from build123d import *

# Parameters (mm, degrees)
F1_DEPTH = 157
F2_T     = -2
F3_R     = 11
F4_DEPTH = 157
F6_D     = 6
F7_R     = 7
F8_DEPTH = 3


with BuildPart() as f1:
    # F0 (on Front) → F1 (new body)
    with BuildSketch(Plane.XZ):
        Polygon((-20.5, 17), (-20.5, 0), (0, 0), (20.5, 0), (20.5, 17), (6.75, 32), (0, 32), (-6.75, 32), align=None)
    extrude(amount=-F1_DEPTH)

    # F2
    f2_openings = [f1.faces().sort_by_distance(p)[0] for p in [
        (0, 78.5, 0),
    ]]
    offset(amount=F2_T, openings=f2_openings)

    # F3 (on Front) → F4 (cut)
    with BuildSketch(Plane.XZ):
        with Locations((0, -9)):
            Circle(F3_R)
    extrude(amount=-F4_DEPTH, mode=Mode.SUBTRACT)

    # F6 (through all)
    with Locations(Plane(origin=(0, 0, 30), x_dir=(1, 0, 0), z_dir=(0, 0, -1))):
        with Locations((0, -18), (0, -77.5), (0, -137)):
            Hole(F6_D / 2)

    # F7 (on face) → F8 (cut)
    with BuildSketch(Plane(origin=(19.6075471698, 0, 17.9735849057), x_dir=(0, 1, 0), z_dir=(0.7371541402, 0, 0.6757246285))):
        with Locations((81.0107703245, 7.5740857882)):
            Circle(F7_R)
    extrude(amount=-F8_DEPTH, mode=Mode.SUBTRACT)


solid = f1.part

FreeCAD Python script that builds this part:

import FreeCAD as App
import Part
import Sketcher


def faces_at(feature, points):
    """Names of the faces that lie closest to the given points."""
    faces = feature.Shape.Faces
    near = lambda p: min(range(len(faces)), key=lambda i: faces[i].distToShape(Part.Vertex(*p))[0])
    return sorted({f"Face{near(p) + 1}" for p in points})


def add_polygon(sketch, points):
    """Adds a closed chain of lines whose ends are joined by coincident constraints."""
    first, n = sketch.GeometryCount, len(points)
    for a, b in zip(points, points[1:] + points[:1]):
        sketch.addGeometry(Part.LineSegment(App.Vector(*a, 0), App.Vector(*b, 0)), False)
    for i in range(n):
        sketch.addConstraint(Sketcher.Constraint("Coincident", first + i, 2, first + (i + 1) % n, 1))

doc = App.newDocument("Part")
body = doc.addObject("PartDesign::Body", "Body")

# Sketch on XZ plane
sketch1 = body.newObject("Sketcher::SketchObject", "Sketch")
sketch1.AttachmentSupport = (doc.getObject("XZ_Plane"), [""])
sketch1.MapMode = "FlatFace"
add_polygon(sketch1, [(-20.5, 17), (-20.5, 0), (20.5, 0), (20.5, 17), (6.75, 32), (-6.75, 32)])  # lines 0-5
sketch1.addConstraint([
    Sketcher.Constraint("Vertical", 0),
    Sketcher.Constraint("Horizontal", 1),
    Sketcher.Constraint("Vertical", 2),
    Sketcher.Constraint("Horizontal", 4),
    Sketcher.Constraint("Symmetric", 0, 2, 1, 2, -1, 1),
    Sketcher.Constraint("Horizontal", 2, 2, 5, 2),
    Sketcher.Constraint("Equal", 3, 5),
    Sketcher.Constraint("DistanceX", 1, 1, 1, 2, 41.0),
    Sketcher.Constraint("DistanceY", 0, 2, 0, 1, 17.0),
    Sketcher.Constraint("DistanceX", 4, 2, 4, 1, 13.5),
    Sketcher.Constraint("DistanceY", -1, 1, 3, 2, 32.0),
])
pad1 = body.newObject("PartDesign::Pad", "Pad")
pad1.Profile = sketch1
pad1.Length = 157
pad1.Reversed = True
doc.recompute()

thickness = body.newObject("PartDesign::Thickness", "Thickness")
thickness.Base = (pad1, faces_at(pad1, [(0, 78.5, 0)]))
thickness.Value = 2
thickness.Reversed = True
thickness.Join = "Arc"

# Sketch on XZ plane
sketch2 = body.newObject("Sketcher::SketchObject", "Sketch001")
sketch2.AttachmentSupport = (doc.getObject("XZ_Plane"), [""])
sketch2.MapMode = "FlatFace"
sketch2.addGeometry(Part.Circle(App.Vector(0, -9, 0), App.Vector(0, 0, 1), 11), False)
sketch2.addConstraint([
    Sketcher.Constraint("PointOnObject", 0, 3, -2),
    Sketcher.Constraint("Diameter", 0, 22.0),
    Sketcher.Constraint("DistanceY", 0, 3, -1, 1, 9.0),
])
pocket1 = body.newObject("PartDesign::Pocket", "Pocket")
pocket1.Profile = sketch2
pocket1.Length = 157

# Sketch on XY plane
sketch3 = body.newObject("Sketcher::SketchObject", "Sketch002")
sketch3.AttachmentSupport = (doc.getObject("XY_Plane"), [""])
sketch3.MapMode = "FlatFace"
sketch3.AttachmentOffset = App.Placement(App.Vector(0, 0, 30), App.Rotation())
sketch3.addGeometry([
    Part.Circle(App.Vector(0, 18, 0), App.Vector(0, 0, 1), 3),
    Part.Circle(App.Vector(0, 77.5, 0), App.Vector(0, 0, 1), 3),
    Part.Circle(App.Vector(0, 137, 0), App.Vector(0, 0, 1), 3),
], False)
sketch3.addConstraint([
    Sketcher.Constraint("Equal", 0, 1),
    Sketcher.Constraint("Equal", 1, 2),
    Sketcher.Constraint("PointOnObject", 0, 3, -2),
    Sketcher.Constraint("PointOnObject", 1, 3, -2),
    Sketcher.Constraint("PointOnObject", 2, 3, -2),
    Sketcher.Constraint("Diameter", 0, 6.0),
    Sketcher.Constraint("DistanceY", -1, 1, 0, 3, 18.0),
    Sketcher.Constraint("DistanceY", -1, 1, 2, 3, 137.0),
    Sketcher.Constraint("DistanceY", -1, 1, 1, 3, 77.5),
])
doc.recompute()
hole = body.newObject("PartDesign::Hole", "Hole")
hole.Profile = sketch3
hole.ThreadType = "None"
hole.Diameter = 6
hole.DepthType = "ThroughAll"
hole.Reversed = True

# Sketch on an angled plane
sketch4 = body.newObject("Sketcher::SketchObject", "Sketch003")
sketch4.Placement = App.Placement(App.Vector(19.607547, 0, 17.973585), App.Rotation(App.Vector(0, 1, 0), App.Vector(-0.675724629, 0, 0.73715414), App.Vector(0.73715414, 0, 0.675724629), "ZXY"))
sketch4.addGeometry(Part.Circle(App.Vector(81.01077, 7.574086, 0), App.Vector(0, 0, 1), 7), False)
sketch4.addConstraint([
    Sketcher.Constraint("Diameter", 0, 14.0),
    Sketcher.Constraint("DistanceX", -1, 1, 0, 3, 81.01077),
    Sketcher.Constraint("DistanceY", -1, 1, 0, 3, 7.574086),
])
pocket2 = body.newObject("PartDesign::Pocket", "Pocket001")
pocket2.Profile = sketch4
pocket2.Length = 3

doc.recompute()
